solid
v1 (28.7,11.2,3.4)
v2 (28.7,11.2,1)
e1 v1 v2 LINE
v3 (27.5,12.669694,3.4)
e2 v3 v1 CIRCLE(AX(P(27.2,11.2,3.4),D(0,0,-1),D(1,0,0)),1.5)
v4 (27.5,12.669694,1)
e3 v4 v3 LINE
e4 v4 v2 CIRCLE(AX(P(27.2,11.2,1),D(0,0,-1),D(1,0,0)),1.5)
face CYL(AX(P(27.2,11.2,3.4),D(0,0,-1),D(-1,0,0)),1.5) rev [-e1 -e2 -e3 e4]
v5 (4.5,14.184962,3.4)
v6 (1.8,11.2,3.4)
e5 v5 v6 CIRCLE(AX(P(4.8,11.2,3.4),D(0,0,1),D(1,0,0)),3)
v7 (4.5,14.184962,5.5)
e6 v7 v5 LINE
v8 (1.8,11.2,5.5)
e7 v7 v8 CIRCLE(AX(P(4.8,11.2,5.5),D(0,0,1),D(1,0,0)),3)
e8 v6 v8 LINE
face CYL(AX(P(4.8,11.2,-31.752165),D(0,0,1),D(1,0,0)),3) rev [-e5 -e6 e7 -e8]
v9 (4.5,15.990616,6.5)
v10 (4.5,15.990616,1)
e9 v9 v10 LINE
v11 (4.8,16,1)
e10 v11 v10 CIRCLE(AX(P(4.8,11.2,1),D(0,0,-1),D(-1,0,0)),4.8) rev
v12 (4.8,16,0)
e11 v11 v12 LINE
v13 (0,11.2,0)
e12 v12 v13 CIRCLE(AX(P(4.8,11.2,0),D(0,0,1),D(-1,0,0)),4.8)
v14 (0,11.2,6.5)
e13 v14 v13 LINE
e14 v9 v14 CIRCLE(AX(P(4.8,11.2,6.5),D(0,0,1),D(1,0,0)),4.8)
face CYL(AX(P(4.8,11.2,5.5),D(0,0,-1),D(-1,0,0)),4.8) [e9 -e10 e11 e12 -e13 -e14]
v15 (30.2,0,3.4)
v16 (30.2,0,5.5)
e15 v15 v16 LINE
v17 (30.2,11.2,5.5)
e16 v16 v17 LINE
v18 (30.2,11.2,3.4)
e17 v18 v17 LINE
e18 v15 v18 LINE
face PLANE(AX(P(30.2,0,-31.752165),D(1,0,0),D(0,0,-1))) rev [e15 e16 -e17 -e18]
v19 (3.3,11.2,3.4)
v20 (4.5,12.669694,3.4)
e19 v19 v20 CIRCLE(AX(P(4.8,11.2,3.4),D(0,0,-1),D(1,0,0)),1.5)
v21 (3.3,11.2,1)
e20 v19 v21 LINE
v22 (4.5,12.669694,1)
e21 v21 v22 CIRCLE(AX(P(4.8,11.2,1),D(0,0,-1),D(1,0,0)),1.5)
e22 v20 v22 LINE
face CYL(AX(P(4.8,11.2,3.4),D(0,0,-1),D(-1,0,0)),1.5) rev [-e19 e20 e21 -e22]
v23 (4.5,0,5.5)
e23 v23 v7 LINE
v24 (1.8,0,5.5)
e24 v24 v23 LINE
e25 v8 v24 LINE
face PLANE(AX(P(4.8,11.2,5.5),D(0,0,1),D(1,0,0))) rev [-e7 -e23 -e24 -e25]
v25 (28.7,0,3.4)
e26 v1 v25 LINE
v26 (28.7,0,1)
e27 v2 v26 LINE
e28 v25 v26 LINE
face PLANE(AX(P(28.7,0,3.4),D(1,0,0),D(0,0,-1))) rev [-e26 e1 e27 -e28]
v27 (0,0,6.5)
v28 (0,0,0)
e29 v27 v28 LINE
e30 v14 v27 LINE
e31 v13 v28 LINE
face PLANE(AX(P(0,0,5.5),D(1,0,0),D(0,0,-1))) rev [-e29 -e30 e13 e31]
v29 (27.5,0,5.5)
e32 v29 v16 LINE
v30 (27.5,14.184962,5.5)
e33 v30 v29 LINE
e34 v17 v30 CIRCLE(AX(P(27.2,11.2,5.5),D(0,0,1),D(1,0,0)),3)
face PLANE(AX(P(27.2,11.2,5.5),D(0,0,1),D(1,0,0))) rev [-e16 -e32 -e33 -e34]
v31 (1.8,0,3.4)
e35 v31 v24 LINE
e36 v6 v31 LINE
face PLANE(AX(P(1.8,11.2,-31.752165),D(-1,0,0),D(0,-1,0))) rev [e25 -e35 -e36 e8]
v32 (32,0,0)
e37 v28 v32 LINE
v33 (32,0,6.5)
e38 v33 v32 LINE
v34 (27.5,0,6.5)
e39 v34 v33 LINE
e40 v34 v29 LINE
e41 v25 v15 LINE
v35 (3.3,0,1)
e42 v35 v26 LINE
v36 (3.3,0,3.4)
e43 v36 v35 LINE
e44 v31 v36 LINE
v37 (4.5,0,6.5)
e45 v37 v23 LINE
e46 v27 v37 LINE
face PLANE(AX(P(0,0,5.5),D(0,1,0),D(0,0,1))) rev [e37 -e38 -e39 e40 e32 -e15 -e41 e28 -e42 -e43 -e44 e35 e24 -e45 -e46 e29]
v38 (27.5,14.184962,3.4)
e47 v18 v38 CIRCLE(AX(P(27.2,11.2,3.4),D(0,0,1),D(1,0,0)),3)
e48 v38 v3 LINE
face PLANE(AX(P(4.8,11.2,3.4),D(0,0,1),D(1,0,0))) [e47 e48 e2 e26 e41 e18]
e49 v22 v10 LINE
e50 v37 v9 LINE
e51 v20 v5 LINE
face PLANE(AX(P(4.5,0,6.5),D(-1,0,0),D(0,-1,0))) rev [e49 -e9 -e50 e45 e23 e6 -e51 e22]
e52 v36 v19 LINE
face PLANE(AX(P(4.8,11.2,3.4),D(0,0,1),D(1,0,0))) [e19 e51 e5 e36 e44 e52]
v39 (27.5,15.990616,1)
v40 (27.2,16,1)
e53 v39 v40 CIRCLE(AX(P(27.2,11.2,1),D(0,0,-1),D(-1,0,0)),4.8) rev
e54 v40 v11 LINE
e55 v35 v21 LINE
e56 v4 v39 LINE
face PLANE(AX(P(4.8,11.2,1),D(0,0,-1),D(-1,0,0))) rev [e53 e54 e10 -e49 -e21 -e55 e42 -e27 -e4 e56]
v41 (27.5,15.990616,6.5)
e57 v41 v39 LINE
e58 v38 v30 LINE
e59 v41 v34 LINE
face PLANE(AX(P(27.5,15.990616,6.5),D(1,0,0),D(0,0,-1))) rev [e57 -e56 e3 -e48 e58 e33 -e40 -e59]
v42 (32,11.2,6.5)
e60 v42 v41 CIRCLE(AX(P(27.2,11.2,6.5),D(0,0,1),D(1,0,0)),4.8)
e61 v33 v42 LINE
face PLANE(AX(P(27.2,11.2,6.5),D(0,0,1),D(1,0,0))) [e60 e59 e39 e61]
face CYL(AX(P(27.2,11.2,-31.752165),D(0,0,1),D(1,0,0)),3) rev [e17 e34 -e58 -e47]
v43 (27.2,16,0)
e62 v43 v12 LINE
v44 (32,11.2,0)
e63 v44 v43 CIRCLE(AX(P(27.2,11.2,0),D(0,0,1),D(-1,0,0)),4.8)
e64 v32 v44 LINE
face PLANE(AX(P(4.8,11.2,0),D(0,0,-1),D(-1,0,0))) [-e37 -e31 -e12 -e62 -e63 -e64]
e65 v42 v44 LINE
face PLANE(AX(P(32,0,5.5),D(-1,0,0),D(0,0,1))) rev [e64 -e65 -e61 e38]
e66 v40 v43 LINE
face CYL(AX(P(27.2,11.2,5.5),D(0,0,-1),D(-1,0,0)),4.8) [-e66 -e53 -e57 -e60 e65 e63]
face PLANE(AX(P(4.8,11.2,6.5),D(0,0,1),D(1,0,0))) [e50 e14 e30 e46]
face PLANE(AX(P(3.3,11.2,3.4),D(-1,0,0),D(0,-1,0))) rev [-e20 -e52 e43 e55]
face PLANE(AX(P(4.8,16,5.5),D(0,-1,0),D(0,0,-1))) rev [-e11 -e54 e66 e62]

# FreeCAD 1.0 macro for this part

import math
import FreeCAD as App
import Part
import Sketcher

V = App.Vector


def add_polygon(sketch, points):
    """Adds a closed chain of lines whose ends are joined by coincident constraints."""
    first, n = sketch.GeometryCount, len(points)
    for a, b in zip(points, points[1:] + points[:1]):
        sketch.addGeometry(Part.LineSegment(App.Vector(*a, 0), App.Vector(*b, 0)), False)
    for i in range(n):
        sketch.addConstraint(Sketcher.Constraint("Coincident", first + i, 2, first + (i + 1) % n, 1))

doc = App.newDocument("Part")
body = doc.addObject("PartDesign::Body", "Body")

# Sketch on XY plane
sketch1 = body.newObject("Sketcher::SketchObject", "Sketch")
sketch1.AttachmentSupport = (doc.getObject("XY_Plane"), [""])
sketch1.MapMode = "FlatFace"
sketch1.addGeometry(Part.LineSegment(V(0, 0, 0), V(32, 0, 0)), False)
sketch1.addGeometry(Part.LineSegment(V(32, 0, 0), V(32, 11.2, 0)), False)
sketch1.addGeometry(Part.ArcOfCircle(Part.Circle(V(27.2, 11.2, 0), V(0, 0, 1), 4.8), math.radians(0), math.radians(90)), False)
sketch1.addGeometry(Part.LineSegment(V(27.2, 16, 0), V(4.8, 16, 0)), False)
sketch1.addGeometry(Part.ArcOfCircle(Part.Circle(V(4.8, 11.2, 0), V(0, 0, 1), 4.8), math.radians(90), math.radians(180)), False)
sketch1.addGeometry(Part.LineSegment(V(0, 11.2, 0), V(0, 0, 0)), False)
sketch1.addConstraint(Sketcher.Constraint("Coincident", 0, 2, 1, 1))
sketch1.addConstraint(Sketcher.Constraint("Tangent", 1, 2, 2, 1))
sketch1.addConstraint(Sketcher.Constraint("Tangent", 2, 2, 3, 1))
sketch1.addConstraint(Sketcher.Constraint("Tangent", 3, 2, 4, 1))
sketch1.addConstraint(Sketcher.Constraint("Tangent", 4, 2, 5, 1))
sketch1.addConstraint(Sketcher.Constraint("Coincident", 5, 2, 0, 1))
sketch1.addConstraint(Sketcher.Constraint("Horizontal", 0))
sketch1.addConstraint(Sketcher.Constraint("Vertical", 1))
sketch1.addConstraint(Sketcher.Constraint("Horizontal", 3))
sketch1.addConstraint(Sketcher.Constraint("Vertical", 5))
sketch1.addConstraint(Sketcher.Constraint("Coincident", 5, 2, -1, 1))
sketch1.addConstraint(Sketcher.Constraint("Equal", 2, 4))
sketch1.addConstraint(Sketcher.Constraint("Radius", 2, 4.8))
sketch1.addConstraint(Sketcher.Constraint("DistanceX", 0, 1, 0, 2, 32.0))
sketch1.addConstraint(Sketcher.Constraint("DistanceY", 1, 1, 1, 2, 11.2))
pad1 = body.newObject("PartDesign::Pad", "Pad")
pad1.Profile = sketch1
pad1.Length = 5.5

# Sketch on XY plane
sketch2 = body.newObject("Sketcher::SketchObject", "Sketch001")
sketch2.AttachmentSupport = (doc.getObject("XY_Plane"), [""])
sketch2.MapMode = "FlatFace"
sketch2.AttachmentOffset = App.Placement(V(0, 0, 5.5), App.Rotation())
sketch2.addGeometry(Part.LineSegment(V(1.8, 0, 0), V(30.2, 0, 0)), False)
sketch2.addGeometry(Part.LineSegment(V(30.2, 0, 0), V(30.2, 11.2, 0)), False)
sketch2.addGeometry(Part.ArcOfCircle(Part.Circle(V(27.2, 11.2, 0), V(0, 0, 1), 3), math.radians(0), math.radians(90)), False)
sketch2.addGeometry(Part.LineSegment(V(27.2, 14.2, 0), V(4.8, 14.2, 0)), False)
sketch2.addGeometry(Part.ArcOfCircle(Part.Circle(V(4.8, 11.2, 0), V(0, 0, 1), 3), math.radians(90), math.radians(180)), False)
sketch2.addGeometry(Part.LineSegment(V(1.8, 11.2, 0), V(1.8, 0, 0)), False)
sketch2.addConstraint(Sketcher.Constraint("Coincident", 0, 2, 1, 1))
sketch2.addConstraint(Sketcher.Constraint("Tangent", 1, 2, 2, 1))
sketch2.addConstraint(Sketcher.Constraint("Tangent", 2, 2, 3, 1))
sketch2.addConstraint(Sketcher.Constraint("Tangent", 3, 2, 4, 1))
sketch2.addConstraint(Sketcher.Constraint("Tangent", 4, 2, 5, 1))
sketch2.addConstraint(Sketcher.Constraint("Coincident", 5, 2, 0, 1))
sketch2.addConstraint(Sketcher.Constraint("Horizontal", 0))
sketch2.addConstraint(Sketcher.Constraint("Vertical", 1))
sketch2.addConstraint(Sketcher.Constraint("Horizontal", 3))
sketch2.addConstraint(Sketcher.Constraint("Vertical", 5))
sketch2.addConstraint(Sketcher.Constraint("Equal", 2, 4))
sketch2.addConstraint(Sketcher.Constraint("PointOnObject", 0, 2, -1))
sketch2.addConstraint(Sketcher.Constraint("Radius", 2, 3.0))
sketch2.addConstraint(Sketcher.Constraint("DistanceX", 0, 1, 0, 2, 28.4))
sketch2.addConstraint(Sketcher.Constraint("DistanceY", 1, 1, 1, 2, 11.2))
sketch2.addConstraint(Sketcher.Constraint("DistanceX", -1, 1, 2, 3, 27.2))
pocket1 = body.newObject("PartDesign::Pocket", "Pocket")
pocket1.Profile = sketch2
pocket1.Length = 4.5

# Sketch on XY plane
sketch3 = body.newObject("Sketcher::SketchObject", "Sketch002")
sketch3.AttachmentSupport = (doc.getObject("XY_Plane"), [""])
sketch3.MapMode = "FlatFace"
sketch3.AttachmentOffset = App.Placement(V(0, 0, 3.4), App.Rotation())
sketch3.addGeometry(Part.LineSegment(V(1.8, 11.2, 0), V(1.8, 0, 0)), False)
sketch3.addGeometry(Part.LineSegment(V(1.8, 0, 0), V(3.3, 0, 0)), False)
sketch3.addGeometry(Part.LineSegment(V(3.3, 0, 0), V(3.3, 11.2, 0)), False)
sketch3.addGeometry(Part.ArcOfCircle(Part.Circle(V(4.8, 11.2, 0), V(0, 0, 1), 1.5), math.radians(90), math.radians(180)), False)
sketch3.addGeometry(Part.LineSegment(V(4.8, 12.7, 0), V(27.2, 12.7, 0)), False)
sketch3.addGeometry(Part.ArcOfCircle(Part.Circle(V(27.2, 11.2, 0), V(0, 0, 1), 1.5), math.radians(0), math.radians(90)), False)
sketch3.addGeometry(Part.LineSegment(V(28.7, 11.2, 0), V(28.7, 0, 0)), False)
sketch3.addGeometry(Part.LineSegment(V(28.7, 0, 0), V(30.2, 0, 0)), False)
sketch3.addGeometry(Part.LineSegment(V(30.2, 0, 0), V(30.2, 11.2, 0)), False)
sketch3.addGeometry(Part.ArcOfCircle(Part.Circle(V(27.2, 11.2, 0), V(0, 0, 1), 3), math.radians(0), math.radians(90)), False)
sketch3.addGeometry(Part.LineSegment(V(27.2, 14.2, 0), V(4.8, 14.2, 0)), False)
sketch3.addGeometry(Part.ArcOfCircle(Part.Circle(V(4.8, 11.2, 0), V(0, 0, 1), 3), math.radians(90), math.radians(180)), False)
sketch3.addConstraint(Sketcher.Constraint("Coincident", 0, 2, 1, 1))
sketch3.addConstraint(Sketcher.Constraint("Coincident", 1, 2, 2, 1))
sketch3.addConstraint(Sketcher.Constraint("Tangent", 2, 2, 3, 2))
sketch3.addConstraint(Sketcher.Constraint("Tangent", 3, 1, 4, 1))
sketch3.addConstraint(Sketcher.Constraint("Tangent", 4, 2, 5, 2))
sketch3.addConstraint(Sketcher.Constraint("Tangent", 5, 1, 6, 1))
sketch3.addConstraint(Sketcher.Constraint("Coincident", 6, 2, 7, 1))
sketch3.addConstraint(Sketcher.Constraint("Coincident", 7, 2, 8, 1))
sketch3.addConstraint(Sketcher.Constraint("Tangent", 8, 2, 9, 1))
sketch3.addConstraint(Sketcher.Constraint("Tangent", 9, 2, 10, 1))
sketch3.addConstraint(Sketcher.Constraint("Tangent", 10, 2, 11, 1))
sketch3.addConstraint(Sketcher.Constraint("Tangent", 11, 2, 0, 1))
sketch3.addConstraint(Sketcher.Constraint("Vertical", 0))
sketch3.addConstraint(Sketcher.Constraint("Horizontal", 1))
sketch3.addConstraint(Sketcher.Constraint("Vertical", 2))
sketch3.addConstraint(Sketcher.Constraint("Horizontal", 4))
sketch3.addConstraint(Sketcher.Constraint("Vertical", 6))
sketch3.addConstraint(Sketcher.Constraint("Horizontal", 7))
sketch3.addConstraint(Sketcher.Constraint("Vertical", 8))
sketch3.addConstraint(Sketcher.Constraint("Horizontal", 10))
sketch3.addConstraint(Sketcher.Constraint("Coincident", 9, 3, 5, 3))
sketch3.addConstraint(Sketcher.Constraint("Coincident", 11, 3, 3, 3))
sketch3.addConstraint(Sketcher.Constraint("Equal", 3, 5))
sketch3.addConstraint(Sketcher.Constraint("PointOnObject", 0, 2, -1))
sketch3.addConstraint(Sketcher.Constraint("PointOnObject", 6, 2, -1))
sketch3.addConstraint(Sketcher.Constraint("Radius", 9, 3.0))
sketch3.addConstraint(Sketcher.Constraint("Radius", 3, 1.5))
sketch3.addConstraint(Sketcher.Constraint("DistanceX", 4, 1, 4, 2, 22.4))
sketch3.addConstraint(Sketcher.Constraint("DistanceY", 0, 2, 0, 1, 11.2))
sketch3.addConstraint(Sketcher.Constraint("DistanceX", -1, 1, 3, 3, 4.8))
pad2 = body.newObject("PartDesign::Pad", "Pad001")
pad2.Profile = sketch3
pad2.Length = 2.4
pad2.Reversed = True

# Sketch on XY plane
sketch4 = body.newObject("Sketcher::SketchObject", "Sketch003")
sketch4.AttachmentSupport = (doc.getObject("XY_Plane"), [""])
sketch4.MapMode = "FlatFace"
sketch4.AttachmentOffset = App.Placement(V(0, 0, 5.5), App.Rotation())
sketch4.addGeometry(Part.LineSegment(V(4.5, 0, 0), V(4.5, 16, 0)), False)
sketch4.addGeometry(Part.ArcOfCircle(Part.Circle(V(4.8, 11.2, 0), V(0, 0, 1), 4.8), math.radians(94), math.radians(180)), False)
sketch4.addGeometry(Part.LineSegment(V(0, 11.2, 0), V(0, 0, 0)), False)
sketch4.addGeometry(Part.LineSegment(V(0, 0, 0), V(4.5, 0, 0)), False)
sketch4.addGeometry(Part.LineSegment(V(27.5, 16, 0), V(27.5, 0, 0)), False)
sketch4.addGeometry(Part.LineSegment(V(27.5, 0, 0), V(32, 0, 0)), False)
sketch4.addGeometry(Part.LineSegment(V(32, 0, 0), V(32, 11.2, 0)), False)
sketch4.addGeometry(Part.ArcOfCircle(Part.Circle(V(27.2, 11.2, 0), V(0, 0, 1), 4.8), math.radians(0), math.radians(86)), False)
sketch4.addConstraint(Sketcher.Constraint("Coincident", 0, 2, 1, 1))
sketch4.addConstraint(Sketcher.Constraint("Tangent", 1, 2, 2, 1))
sketch4.addConstraint(Sketcher.Constraint("Coincident", 2, 2, 3, 1))
sketch4.addConstraint(Sketcher.Constraint("Coincident", 3, 2, 0, 1))
sketch4.addConstraint(Sketcher.Constraint("Coincident", 4, 2, 5, 1))
sketch4.addConstraint(Sketcher.Constraint("Coincident", 5, 2, 6, 1))
sketch4.addConstraint(Sketcher.Constraint("Tangent", 6, 2, 7, 1))
sketch4.addConstraint(Sketcher.Constraint("Coincident", 7, 2, 4, 1))
sketch4.addConstraint(Sketcher.Constraint("Vertical", 0))
sketch4.addConstraint(Sketcher.Constraint("Vertical", 2))
sketch4.addConstraint(Sketcher.Constraint("Horizontal", 3))
sketch4.addConstraint(Sketcher.Constraint("Vertical", 4))
sketch4.addConstraint(Sketcher.Constraint("Horizontal", 5))
sketch4.addConstraint(Sketcher.Constraint("Vertical", 6))
sketch4.addConstraint(Sketcher.Constraint("Coincident", 2, 2, -1, 1))
sketch4.addConstraint(Sketcher.Constraint("Equal", 1, 7))
sketch4.addConstraint(Sketcher.Constraint("PointOnObject", 4, 2, -1))
sketch4.addConstraint(Sketcher.Constraint("Horizontal", 1, 3, 7, 3))
sketch4.addConstraint(Sketcher.Constraint("Horizontal", 0, 2, 7, 2))
sketch4.addConstraint(Sketcher.Constraint("Radius", 1, 4.8))
sketch4.addConstraint(Sketcher.Constraint("DistanceX", 3, 1, 3, 2, 4.5))
sketch4.addConstraint(Sketcher.Constraint("DistanceY", 2, 2, 2, 1, 11.2))
sketch4.addConstraint(Sketcher.Constraint("DistanceX", -1, 1, 5, 2, 32.0))
pad3 = body.newObject("PartDesign::Pad", "Pad002")
pad3.Profile = sketch4
pad3.Length = 1

# Sketch on XZ plane
sketch5 = body.newObject("Sketcher::SketchObject", "Sketch004")
sketch5.AttachmentSupport = (doc.getObject("XZ_Plane"), [""])
sketch5.MapMode = "FlatFace"
sketch5.AttachmentOffset = App.Placement(V(0, 0, -16), App.Rotation())
add_polygon(sketch5, [(4.5, 1), (4.5, 5.5), (27.5, 5.5), (27.5, 1)])  # lines 0-3
sketch5.addConstraint(Sketcher.Constraint("Vertical", 0))
sketch5.addConstraint(Sketcher.Constraint("Horizontal", 1))
sketch5.addConstraint(Sketcher.Constraint("Vertical", 2))
sketch5.addConstraint(Sketcher.Constraint("Horizontal", 3))
sketch5.addConstraint(Sketcher.Constraint("DistanceX", 1, 1, 1, 2, 23.0))
sketch5.addConstraint(Sketcher.Constraint("DistanceY", 0, 1, 0, 2, 4.5))
sketch5.addConstraint(Sketcher.Constraint("DistanceY", -1, 1, 2, 2, 1.0))
sketch5.addConstraint(Sketcher.Constraint("DistanceX", -1, 1, 0, 2, 4.5))
pocket2 = body.newObject("PartDesign::Pocket", "Pocket001")
pocket2.Profile = sketch5
pocket2.Length = 3.330306
pocket2.Reversed = True

doc.recompute()
